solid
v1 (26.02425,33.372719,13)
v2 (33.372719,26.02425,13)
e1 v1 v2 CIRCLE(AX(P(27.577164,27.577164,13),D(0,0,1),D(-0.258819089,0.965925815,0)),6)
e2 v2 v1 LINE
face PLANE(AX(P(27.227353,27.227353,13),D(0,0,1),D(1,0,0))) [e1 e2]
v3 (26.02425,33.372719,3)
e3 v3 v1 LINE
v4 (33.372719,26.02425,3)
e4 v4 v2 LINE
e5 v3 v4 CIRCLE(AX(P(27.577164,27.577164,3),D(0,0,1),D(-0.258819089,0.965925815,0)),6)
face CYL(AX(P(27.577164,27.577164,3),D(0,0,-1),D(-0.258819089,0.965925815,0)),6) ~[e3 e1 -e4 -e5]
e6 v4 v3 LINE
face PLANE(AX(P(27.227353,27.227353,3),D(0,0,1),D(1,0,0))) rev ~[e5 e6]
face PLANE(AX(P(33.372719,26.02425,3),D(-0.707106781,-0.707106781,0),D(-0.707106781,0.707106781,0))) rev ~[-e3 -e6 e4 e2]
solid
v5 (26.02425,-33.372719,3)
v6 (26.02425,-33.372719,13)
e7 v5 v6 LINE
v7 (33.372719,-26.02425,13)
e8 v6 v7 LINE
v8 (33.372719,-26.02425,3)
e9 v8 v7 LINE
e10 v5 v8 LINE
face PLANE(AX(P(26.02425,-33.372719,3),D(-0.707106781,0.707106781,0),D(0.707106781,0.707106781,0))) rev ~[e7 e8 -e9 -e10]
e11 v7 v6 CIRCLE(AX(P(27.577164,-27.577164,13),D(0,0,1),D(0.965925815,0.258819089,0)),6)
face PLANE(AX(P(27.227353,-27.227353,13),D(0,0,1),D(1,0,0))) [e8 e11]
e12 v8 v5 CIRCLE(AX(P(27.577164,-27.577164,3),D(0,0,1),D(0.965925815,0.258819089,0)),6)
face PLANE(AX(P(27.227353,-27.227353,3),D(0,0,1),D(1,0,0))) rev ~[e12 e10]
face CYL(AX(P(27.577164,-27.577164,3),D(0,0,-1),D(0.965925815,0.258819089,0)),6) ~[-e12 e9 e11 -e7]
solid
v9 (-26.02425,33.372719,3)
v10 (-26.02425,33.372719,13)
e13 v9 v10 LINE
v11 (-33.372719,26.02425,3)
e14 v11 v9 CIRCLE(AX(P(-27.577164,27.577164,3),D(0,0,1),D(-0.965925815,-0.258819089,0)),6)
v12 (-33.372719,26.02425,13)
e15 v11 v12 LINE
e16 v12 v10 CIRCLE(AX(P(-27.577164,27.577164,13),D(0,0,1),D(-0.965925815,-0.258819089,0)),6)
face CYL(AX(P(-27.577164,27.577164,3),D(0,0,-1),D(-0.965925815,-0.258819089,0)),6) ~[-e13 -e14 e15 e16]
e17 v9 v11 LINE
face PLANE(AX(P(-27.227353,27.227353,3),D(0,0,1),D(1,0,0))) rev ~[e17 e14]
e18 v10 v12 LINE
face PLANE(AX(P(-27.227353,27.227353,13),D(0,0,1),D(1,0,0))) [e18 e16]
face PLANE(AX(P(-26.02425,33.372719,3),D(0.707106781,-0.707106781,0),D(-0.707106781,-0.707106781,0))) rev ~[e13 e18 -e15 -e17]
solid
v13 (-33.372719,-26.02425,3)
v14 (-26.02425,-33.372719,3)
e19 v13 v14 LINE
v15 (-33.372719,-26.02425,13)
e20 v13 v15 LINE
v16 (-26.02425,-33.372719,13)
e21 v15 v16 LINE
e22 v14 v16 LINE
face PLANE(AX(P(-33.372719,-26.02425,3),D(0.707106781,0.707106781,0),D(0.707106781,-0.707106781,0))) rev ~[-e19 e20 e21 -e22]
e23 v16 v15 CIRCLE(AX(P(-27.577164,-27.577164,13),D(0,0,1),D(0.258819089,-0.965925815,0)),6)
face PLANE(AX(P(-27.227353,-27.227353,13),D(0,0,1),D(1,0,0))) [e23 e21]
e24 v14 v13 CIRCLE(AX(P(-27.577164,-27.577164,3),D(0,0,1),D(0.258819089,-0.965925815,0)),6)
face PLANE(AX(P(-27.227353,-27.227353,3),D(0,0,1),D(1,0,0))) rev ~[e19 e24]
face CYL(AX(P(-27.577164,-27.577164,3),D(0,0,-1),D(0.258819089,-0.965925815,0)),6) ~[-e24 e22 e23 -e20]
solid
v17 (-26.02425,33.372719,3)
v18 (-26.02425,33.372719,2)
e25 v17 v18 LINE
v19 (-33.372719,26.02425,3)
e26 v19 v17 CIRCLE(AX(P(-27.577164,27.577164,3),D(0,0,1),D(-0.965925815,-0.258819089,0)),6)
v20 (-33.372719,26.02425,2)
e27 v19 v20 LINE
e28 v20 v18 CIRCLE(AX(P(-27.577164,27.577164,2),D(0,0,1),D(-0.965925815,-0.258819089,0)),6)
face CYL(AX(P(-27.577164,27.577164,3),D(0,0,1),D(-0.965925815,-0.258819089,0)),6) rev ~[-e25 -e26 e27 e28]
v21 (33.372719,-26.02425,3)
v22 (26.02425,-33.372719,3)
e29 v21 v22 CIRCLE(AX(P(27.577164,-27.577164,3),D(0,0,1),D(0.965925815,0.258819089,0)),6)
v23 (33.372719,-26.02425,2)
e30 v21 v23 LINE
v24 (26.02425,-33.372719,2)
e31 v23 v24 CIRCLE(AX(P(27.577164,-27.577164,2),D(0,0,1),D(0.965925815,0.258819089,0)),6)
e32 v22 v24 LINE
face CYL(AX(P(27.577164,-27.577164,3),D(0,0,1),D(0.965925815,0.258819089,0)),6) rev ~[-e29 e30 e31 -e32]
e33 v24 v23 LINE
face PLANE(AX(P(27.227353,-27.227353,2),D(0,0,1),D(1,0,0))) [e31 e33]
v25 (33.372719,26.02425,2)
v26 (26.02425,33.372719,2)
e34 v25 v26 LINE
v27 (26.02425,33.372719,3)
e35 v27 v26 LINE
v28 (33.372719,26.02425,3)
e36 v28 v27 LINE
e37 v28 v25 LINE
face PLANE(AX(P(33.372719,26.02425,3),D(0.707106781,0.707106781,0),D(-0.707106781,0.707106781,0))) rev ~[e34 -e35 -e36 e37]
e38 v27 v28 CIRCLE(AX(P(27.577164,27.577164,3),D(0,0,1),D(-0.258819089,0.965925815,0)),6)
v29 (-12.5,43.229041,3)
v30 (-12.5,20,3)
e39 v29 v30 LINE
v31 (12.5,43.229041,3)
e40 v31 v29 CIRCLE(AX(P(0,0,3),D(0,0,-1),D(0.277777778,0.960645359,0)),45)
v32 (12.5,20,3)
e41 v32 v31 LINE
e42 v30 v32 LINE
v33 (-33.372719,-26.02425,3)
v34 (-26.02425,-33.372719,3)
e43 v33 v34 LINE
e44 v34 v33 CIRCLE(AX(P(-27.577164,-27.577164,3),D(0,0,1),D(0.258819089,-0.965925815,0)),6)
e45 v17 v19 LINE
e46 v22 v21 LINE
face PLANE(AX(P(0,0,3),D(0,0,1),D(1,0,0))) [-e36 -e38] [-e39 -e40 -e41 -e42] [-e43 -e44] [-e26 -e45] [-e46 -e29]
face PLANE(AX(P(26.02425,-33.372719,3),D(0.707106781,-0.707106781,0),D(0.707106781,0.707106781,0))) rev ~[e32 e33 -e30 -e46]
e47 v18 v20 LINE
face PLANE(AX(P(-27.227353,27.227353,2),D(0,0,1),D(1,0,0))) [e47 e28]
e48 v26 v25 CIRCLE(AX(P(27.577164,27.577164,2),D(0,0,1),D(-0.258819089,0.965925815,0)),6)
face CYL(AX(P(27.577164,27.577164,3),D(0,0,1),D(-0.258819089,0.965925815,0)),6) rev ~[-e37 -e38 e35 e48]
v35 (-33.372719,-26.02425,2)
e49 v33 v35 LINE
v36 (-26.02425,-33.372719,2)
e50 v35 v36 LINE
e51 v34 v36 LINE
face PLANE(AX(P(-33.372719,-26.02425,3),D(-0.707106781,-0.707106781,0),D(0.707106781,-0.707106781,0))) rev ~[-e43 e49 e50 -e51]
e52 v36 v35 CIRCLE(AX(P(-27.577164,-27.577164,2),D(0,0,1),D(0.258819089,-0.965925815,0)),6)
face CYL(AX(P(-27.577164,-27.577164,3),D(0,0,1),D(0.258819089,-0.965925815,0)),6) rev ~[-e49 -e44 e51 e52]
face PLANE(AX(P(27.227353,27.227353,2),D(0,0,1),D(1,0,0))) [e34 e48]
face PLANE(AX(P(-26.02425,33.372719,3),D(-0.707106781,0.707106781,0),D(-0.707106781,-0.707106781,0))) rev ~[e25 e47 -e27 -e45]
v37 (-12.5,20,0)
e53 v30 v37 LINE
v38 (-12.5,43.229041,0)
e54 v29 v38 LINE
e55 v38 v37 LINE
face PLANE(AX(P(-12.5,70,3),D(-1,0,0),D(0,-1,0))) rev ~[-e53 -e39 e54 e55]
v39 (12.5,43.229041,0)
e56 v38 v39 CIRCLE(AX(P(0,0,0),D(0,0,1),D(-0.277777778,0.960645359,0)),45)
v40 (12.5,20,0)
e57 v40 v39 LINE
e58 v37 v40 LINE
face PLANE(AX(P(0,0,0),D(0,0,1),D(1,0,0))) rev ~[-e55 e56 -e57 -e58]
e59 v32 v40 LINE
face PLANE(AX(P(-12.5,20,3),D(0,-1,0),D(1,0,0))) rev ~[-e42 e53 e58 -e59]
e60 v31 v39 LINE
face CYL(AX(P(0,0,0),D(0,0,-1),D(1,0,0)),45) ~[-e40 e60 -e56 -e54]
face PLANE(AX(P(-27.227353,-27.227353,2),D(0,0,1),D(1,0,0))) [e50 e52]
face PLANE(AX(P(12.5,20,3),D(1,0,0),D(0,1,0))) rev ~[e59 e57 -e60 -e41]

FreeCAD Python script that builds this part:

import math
import FreeCAD as App
import Part
import Sketcher
Q = App.Units.Quantity


def add_polygon(sketch, points):
    """Adds a closed chain of lines whose ends are joined by coincident constraints."""
    first, n = sketch.GeometryCount, len(points)
    for a, b in zip(points, points[1:] + points[:1]):
        sketch.addGeometry(Part.LineSegment(App.Vector(*a, 0), App.Vector(*b, 0)), False)
    for i in range(n):
        sketch.addConstraint(Sketcher.Constraint("Coincident", first + i, 2, first + (i + 1) % n, 1))

doc = App.newDocument("Part")
body = doc.addObject("PartDesign::Body", "Body")

sketch1 = body.newObject("Sketcher::SketchObject", "Sketch")
sketch1.AttachmentSupport = (doc.getObject("XY_Plane"), [""])
sketch1.MapMode = "FlatFace"
sketch1.addGeometry(Part.Circle(App.Vector(0, 0, 0), App.Vector(0, 0, 1), 45), False)
sketch1.addConstraint([
    Sketcher.Constraint("Coincident", 0, 3, -1, 1),
    Sketcher.Constraint("Diameter", 0, Q("90 mm")),
])
pad1 = body.newObject("PartDesign::Pad", "Pad")
pad1.Profile = sketch1
pad1.Length = 3

sketch2 = body.newObject("Sketcher::SketchObject", "Sketch001")
sketch2.AttachmentSupport = (doc.getObject("XY_Plane"), [""])
sketch2.MapMode = "FlatFace"
sketch2.AttachmentOffset = App.Placement(App.Vector(0, 0, 3), App.Rotation())
add_polygon(sketch2, [(12.5, 70), (-12.5, 70), (-12.5, 20), (12.5, 20)])
sketch2.addConstraint([
    Sketcher.Constraint("Horizontal", 0),
    Sketcher.Constraint("Vertical", 1),
    Sketcher.Constraint("Horizontal", 2),
    Sketcher.Constraint("Vertical", 3),
    Sketcher.Constraint("DistanceX", 0, 2, 0, 1, Q("25 mm")),
    Sketcher.Constraint("DistanceY", 1, 2, 1, 1, Q("50 mm")),
    Sketcher.Constraint("DistanceY", -1, 1, 0, 2, Q("70 mm")),
    Sketcher.Constraint("DistanceX", 0, 2, -1, 1, Q("12.5 mm")),
])
pocket1 = body.newObject("PartDesign::Pocket", "Pocket")
pocket1.Profile = sketch2
pocket1.Length = 25

sketch3 = body.newObject("Sketcher::SketchObject", "Sketch002")
sketch3.AttachmentSupport = (doc.getObject("XY_Plane"), [""])
sketch3.MapMode = "FlatFace"
sketch3.AttachmentOffset = App.Placement(App.Vector(0, 0, 3), App.Rotation())
sketch3.addGeometry([
    Part.LineSegment(App.Vector(-26.02425, 33.372719, 0), App.Vector(-33.372719, 26.02425, 0)),
    Part.ArcOfCircle(Part.Circle(App.Vector(-27.577164, 27.577164, 0), App.Vector(0, 0, 1), 6), math.radians(-164.999997), math.radians(74.999997)),
    Part.LineSegment(App.Vector(-33.372719, -26.02425, 0), App.Vector(-26.02425, -33.372719, 0)),
    Part.ArcOfCircle(Part.Circle(App.Vector(-27.577164, -27.577164, 0), App.Vector(0, 0, 1), 6), math.radians(-74.999997), math.radians(164.999997)),
    Part.LineSegment(App.Vector(26.02425, -33.372719, 0), App.Vector(33.372719, -26.02425, 0)),
    Part.ArcOfCircle(Part.Circle(App.Vector(27.577164, -27.577164, 0), App.Vector(0, 0, 1), 6), math.radians(15.000003), math.radians(254.999997)),
    Part.LineSegment(App.Vector(33.372719, 26.02425, 0), App.Vector(26.02425, 33.372719, 0)),
    Part.ArcOfCircle(Part.Circle(App.Vector(27.577164, 27.577164, 0), App.Vector(0, 0, 1), 6), math.radians(105.000003), math.radians(344.999997)),
], False)
sketch3.addConstraint([
    Sketcher.Constraint("Coincident", 0, 1, 1, 2),
    Sketcher.Constraint("Coincident", 1, 1, 0, 2),
    Sketcher.Constraint("Coincident", 2, 1, 3, 2),
    Sketcher.Constraint("Coincident", 3, 1, 2, 2),
    Sketcher.Constraint("Coincident", 4, 1, 5, 2),
    Sketcher.Constraint("Coincident", 5, 1, 4, 2),
    Sketcher.Constraint("Coincident", 6, 1, 7, 2),
    Sketcher.Constraint("Coincident", 7, 1, 6, 2),
    Sketcher.Constraint("Equal", 1, 3),
    Sketcher.Constraint("Equal", 3, 5),
    Sketcher.Constraint("Equal", 5, 7),
    Sketcher.Constraint("Symmetric", 1, 3, 5, 3, -1, 1),
    Sketcher.Constraint("Symmetric", 3, 3, 7, 3, -1, 1),
    Sketcher.Constraint("Symmetric", 3, 3, 5, 3, -2),
    Sketcher.Constraint("Perpendicular", 0, 2),
    Sketcher.Constraint("Perpendicular", 2, 4),
    Sketcher.Constraint("Perpendicular", 4, 6),
    Sketcher.Constraint("Horizontal", 3, 1, 4, 1),
    Sketcher.Constraint("Horizontal", 2, 1, 5, 1),
    Sketcher.Constraint("Horizontal", 1, 1, 6, 1),
    Sketcher.Constraint("Vertical", 1, 1, 2, 1),
    Sketcher.Constraint("Radius", 1, Q("6 mm")),
    Sketcher.Constraint("DistanceY", 2, 1, 1, 1, Q("52.0485 mm")),
    Sketcher.Constraint("DistanceX", 3, 1, 4, 1, Q("52.0485 mm")),
    Sketcher.Constraint("DistanceY", -1, 1, 0, 1, Q("33.372719 mm")),
])
pocket2 = body.newObject("PartDesign::Pocket", "Pocket001")
pocket2.Profile = sketch3
pocket2.Length = 1
body2 = doc.addObject("PartDesign::Body", "Body001")
body2.AllowCompound = True

sketch4 = body2.newObject("Sketcher::SketchObject", "Sketch003")
sketch4.AttachmentSupport = (doc.getObject("XY_Plane001"), [""])
sketch4.MapMode = "FlatFace"
sketch4.AttachmentOffset = App.Placement(App.Vector(0, 0, 3), App.Rotation())
sketch4.addGeometry([
    Part.LineSegment(App.Vector(-26.02425, 33.372719, 0), App.Vector(-33.372719, 26.02425, 0)),
    Part.ArcOfCircle(Part.Circle(App.Vector(-27.577164, 27.577164, 0), App.Vector(0, 0, 1), 6), math.radians(-164.999997), math.radians(74.999997)),
    Part.LineSegment(App.Vector(33.372719, 26.02425, 0), App.Vector(26.02425, 33.372719, 0)),
    Part.ArcOfCircle(Part.Circle(App.Vector(27.577164, 27.577164, 0), App.Vector(0, 0, 1), 6), math.radians(105.000003), math.radians(344.999997)),
    Part.LineSegment(App.Vector(-33.372719, -26.02425, 0), App.Vector(-26.02425, -33.372719, 0)),
    Part.ArcOfCircle(Part.Circle(App.Vector(-27.577164, -27.577164, 0), App.Vector(0, 0, 1), 6), math.radians(-74.999997), math.radians(164.999997)),
    Part.LineSegment(App.Vector(26.02425, -33.372719, 0), App.Vector(33.372719, -26.02425, 0)),
    Part.ArcOfCircle(Part.Circle(App.Vector(27.577164, -27.577164, 0), App.Vector(0, 0, 1), 6), math.radians(15.000003), math.radians(254.999997)),
], False)
sketch4.addConstraint([
    Sketcher.Constraint("Coincident", 0, 1, 1, 2),
    Sketcher.Constraint("Coincident", 1, 1, 0, 2),
    Sketcher.Constraint("Coincident", 2, 1, 3, 2),
    Sketcher.Constraint("Coincident", 3, 1, 2, 2),
    Sketcher.Constraint("Coincident", 4, 1, 5, 2),
    Sketcher.Constraint("Coincident", 5, 1, 4, 2),
    Sketcher.Constraint("Coincident", 6, 1, 7, 2),
    Sketcher.Constraint("Coincident", 7, 1, 6, 2),
    Sketcher.Constraint("Equal", 1, 3),
    Sketcher.Constraint("Equal", 3, 5),
    Sketcher.Constraint("Equal", 5, 7),
    Sketcher.Constraint("Symmetric", 3, 3, 5, 3, -1, 1),
    Sketcher.Constraint("Symmetric", 1, 3, 7, 3, -1, 1),
    Sketcher.Constraint("Symmetric", 1, 3, 3, 3, -2),
    Sketcher.Constraint("Perpendicular", 0, 2),
    Sketcher.Constraint("Parallel", 2, 4),
    Sketcher.Constraint("Perpendicular", 4, 6),
    Sketcher.Constraint("Horizontal", 1, 1, 2, 1),
    Sketcher.Constraint("Horizontal", 0, 1, 3, 1),
    Sketcher.Constraint("Horizontal", 5, 1, 6, 1),
    Sketcher.Constraint("Vertical", 1, 1, 4, 1),
    Sketcher.Constraint("Radius", 1, Q("6 mm")),
    Sketcher.Constraint("DistanceX", 0, 1, 3, 1, Q("52.0485 mm")),
    Sketcher.Constraint("DistanceY", 4, 1, 1, 1, Q("52.0485 mm")),
    Sketcher.Constraint("DistanceY", -1, 1, 0, 1, Q("33.372719 mm")),
])
pad2 = body2.newObject("PartDesign::Pad", "Pad001")
pad2.Profile = sketch4
pad2.Length = 10

doc.recompute()
